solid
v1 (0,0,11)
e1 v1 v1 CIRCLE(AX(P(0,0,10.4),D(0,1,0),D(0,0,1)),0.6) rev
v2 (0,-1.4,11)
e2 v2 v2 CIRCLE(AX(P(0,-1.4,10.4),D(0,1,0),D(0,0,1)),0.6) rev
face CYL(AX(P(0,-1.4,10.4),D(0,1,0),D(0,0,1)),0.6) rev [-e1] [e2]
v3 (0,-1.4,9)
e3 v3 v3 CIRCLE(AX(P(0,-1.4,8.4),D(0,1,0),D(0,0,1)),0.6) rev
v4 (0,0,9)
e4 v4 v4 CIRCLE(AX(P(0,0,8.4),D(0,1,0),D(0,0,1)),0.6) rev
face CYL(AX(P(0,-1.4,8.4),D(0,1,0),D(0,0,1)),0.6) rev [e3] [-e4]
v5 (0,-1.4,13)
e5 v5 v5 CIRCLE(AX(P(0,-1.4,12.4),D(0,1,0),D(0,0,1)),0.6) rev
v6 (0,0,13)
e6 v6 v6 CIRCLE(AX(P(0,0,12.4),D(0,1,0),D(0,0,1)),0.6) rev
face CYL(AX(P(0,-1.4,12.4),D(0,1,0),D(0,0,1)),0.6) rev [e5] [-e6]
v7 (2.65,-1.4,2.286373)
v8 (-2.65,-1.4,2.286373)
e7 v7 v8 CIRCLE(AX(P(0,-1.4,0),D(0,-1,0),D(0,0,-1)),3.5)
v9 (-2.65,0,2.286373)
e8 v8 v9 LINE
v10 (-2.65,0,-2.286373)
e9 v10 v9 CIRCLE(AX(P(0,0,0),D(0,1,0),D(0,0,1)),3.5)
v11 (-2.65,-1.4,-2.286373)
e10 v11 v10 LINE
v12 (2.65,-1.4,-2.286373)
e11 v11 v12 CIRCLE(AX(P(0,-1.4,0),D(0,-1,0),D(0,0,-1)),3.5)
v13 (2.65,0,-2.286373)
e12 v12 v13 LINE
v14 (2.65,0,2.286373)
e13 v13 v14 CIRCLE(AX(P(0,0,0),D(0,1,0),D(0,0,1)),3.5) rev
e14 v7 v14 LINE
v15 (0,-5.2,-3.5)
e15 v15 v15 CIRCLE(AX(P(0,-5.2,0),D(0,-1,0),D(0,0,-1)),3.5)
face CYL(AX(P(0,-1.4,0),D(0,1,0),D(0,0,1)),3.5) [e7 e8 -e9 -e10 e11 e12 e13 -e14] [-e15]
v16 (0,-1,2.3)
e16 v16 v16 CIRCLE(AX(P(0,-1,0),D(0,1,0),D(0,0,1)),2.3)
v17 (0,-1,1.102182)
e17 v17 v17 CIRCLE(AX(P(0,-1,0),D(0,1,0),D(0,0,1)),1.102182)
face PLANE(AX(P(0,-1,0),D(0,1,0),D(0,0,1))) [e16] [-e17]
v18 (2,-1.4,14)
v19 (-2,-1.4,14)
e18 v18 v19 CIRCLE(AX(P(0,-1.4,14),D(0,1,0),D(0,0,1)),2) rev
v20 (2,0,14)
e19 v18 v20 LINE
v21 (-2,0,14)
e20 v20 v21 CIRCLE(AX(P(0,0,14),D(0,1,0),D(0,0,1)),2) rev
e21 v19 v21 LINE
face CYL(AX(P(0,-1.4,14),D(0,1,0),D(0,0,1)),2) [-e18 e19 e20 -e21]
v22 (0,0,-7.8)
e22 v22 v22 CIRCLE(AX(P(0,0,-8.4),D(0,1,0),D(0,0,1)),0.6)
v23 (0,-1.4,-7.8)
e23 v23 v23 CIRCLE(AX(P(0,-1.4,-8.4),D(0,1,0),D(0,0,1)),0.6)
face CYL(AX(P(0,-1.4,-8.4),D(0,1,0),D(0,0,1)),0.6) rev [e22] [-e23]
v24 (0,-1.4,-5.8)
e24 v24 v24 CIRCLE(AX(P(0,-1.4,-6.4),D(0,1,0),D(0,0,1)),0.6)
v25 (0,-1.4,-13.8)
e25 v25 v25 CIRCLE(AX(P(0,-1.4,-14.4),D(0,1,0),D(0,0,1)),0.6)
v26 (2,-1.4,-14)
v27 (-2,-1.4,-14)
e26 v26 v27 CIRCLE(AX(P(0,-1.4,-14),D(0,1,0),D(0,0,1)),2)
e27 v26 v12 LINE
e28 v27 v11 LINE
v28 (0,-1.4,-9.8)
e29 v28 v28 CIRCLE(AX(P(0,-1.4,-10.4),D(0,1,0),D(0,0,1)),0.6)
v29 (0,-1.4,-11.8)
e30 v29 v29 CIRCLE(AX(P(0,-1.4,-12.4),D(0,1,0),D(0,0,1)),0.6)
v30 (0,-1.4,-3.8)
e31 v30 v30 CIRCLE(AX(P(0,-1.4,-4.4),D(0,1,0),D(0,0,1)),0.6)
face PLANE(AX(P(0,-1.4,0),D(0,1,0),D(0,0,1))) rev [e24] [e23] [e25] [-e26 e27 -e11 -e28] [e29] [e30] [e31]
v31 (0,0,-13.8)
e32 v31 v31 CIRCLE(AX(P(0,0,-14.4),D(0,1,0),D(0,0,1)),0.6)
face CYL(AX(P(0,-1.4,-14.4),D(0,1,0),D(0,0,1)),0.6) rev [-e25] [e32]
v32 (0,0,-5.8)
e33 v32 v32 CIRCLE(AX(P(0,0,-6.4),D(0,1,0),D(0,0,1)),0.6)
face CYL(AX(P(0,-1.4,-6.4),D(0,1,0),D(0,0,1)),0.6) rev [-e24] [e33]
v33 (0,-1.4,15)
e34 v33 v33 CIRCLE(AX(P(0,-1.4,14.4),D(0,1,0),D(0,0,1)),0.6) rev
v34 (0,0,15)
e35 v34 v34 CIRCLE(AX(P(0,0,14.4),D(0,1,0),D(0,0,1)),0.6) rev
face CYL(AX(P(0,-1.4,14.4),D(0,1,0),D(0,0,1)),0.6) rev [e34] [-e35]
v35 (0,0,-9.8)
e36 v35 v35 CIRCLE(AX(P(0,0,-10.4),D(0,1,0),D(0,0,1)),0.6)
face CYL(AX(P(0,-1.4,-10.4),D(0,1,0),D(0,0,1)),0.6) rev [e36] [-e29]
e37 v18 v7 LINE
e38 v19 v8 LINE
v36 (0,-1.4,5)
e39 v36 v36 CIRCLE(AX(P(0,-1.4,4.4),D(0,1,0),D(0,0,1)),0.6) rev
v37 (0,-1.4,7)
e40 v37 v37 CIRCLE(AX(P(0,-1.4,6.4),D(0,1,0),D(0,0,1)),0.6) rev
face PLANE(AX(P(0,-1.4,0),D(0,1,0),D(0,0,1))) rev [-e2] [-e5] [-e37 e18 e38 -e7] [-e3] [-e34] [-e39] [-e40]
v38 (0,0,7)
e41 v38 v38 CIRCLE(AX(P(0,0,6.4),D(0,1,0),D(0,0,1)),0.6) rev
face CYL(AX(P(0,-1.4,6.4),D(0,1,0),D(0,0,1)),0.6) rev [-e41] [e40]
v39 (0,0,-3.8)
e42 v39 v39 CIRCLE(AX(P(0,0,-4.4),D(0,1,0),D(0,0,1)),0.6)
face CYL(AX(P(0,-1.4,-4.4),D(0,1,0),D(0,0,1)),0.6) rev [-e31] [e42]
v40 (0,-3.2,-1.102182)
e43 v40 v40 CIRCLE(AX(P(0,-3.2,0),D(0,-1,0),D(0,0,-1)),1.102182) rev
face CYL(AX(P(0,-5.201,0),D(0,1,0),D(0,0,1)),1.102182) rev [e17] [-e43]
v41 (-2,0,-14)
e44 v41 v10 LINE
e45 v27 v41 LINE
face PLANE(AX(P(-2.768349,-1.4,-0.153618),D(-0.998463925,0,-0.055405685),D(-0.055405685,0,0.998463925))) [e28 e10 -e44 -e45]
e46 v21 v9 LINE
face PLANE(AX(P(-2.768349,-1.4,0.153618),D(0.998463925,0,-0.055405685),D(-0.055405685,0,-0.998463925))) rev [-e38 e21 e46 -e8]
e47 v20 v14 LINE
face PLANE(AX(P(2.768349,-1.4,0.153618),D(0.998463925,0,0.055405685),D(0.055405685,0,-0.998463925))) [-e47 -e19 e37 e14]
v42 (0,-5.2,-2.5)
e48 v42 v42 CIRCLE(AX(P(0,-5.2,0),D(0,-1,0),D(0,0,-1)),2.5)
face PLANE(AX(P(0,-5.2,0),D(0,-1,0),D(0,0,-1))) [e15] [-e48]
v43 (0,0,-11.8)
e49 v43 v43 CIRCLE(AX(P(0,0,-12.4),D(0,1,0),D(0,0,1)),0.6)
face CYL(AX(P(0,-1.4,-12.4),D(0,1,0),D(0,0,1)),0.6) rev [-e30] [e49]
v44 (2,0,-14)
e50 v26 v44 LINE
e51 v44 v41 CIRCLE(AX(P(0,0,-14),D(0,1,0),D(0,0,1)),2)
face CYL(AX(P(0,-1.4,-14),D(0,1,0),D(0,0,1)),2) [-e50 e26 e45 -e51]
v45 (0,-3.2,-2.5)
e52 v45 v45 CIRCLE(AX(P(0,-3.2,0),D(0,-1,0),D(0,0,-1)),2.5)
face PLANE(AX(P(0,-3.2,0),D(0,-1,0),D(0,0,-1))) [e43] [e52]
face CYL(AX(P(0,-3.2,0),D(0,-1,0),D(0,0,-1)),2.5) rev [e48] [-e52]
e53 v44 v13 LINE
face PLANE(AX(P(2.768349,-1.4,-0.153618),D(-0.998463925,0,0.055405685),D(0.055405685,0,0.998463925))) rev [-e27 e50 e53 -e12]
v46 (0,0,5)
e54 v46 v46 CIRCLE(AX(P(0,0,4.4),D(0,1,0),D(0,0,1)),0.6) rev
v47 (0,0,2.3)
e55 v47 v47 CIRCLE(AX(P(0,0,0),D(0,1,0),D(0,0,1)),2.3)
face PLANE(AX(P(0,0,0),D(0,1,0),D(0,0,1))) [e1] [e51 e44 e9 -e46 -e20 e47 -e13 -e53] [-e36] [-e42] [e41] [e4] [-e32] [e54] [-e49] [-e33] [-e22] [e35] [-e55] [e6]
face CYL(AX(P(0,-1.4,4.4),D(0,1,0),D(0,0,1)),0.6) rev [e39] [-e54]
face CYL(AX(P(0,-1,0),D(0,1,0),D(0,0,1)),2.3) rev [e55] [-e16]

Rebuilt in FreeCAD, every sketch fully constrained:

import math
import FreeCAD as App
import Part
import Sketcher

doc = App.newDocument("Part")
body = doc.addObject("PartDesign::Body", "Body")

# Sketch on XZ plane
sketch1 = body.newObject("Sketcher::SketchObject", "Sketch")
sketch1.AttachmentSupport = (doc.getObject("XZ_Plane"), [""])
sketch1.MapMode = "FlatFace"
sketch1.addGeometry([
    Part.ArcOfCircle(Part.Circle(App.Vector(0, 0, 0), App.Vector(0, 0, 1), 3.5), math.radians(-41), math.radians(41)),  # 0
    Part.LineSegment(App.Vector(2.6, -2.3, 0), App.Vector(2, -14, 0)),  # 1
    Part.ArcOfCircle(Part.Circle(App.Vector(0, -14, 0), App.Vector(0, 0, 1), 2), math.radians(180), math.radians(360)),  # 2
    Part.LineSegment(App.Vector(-2, -14, 0), App.Vector(-2.6, -2.3, 0)),  # 3
    Part.ArcOfCircle(Part.Circle(App.Vector(0, 0, 0), App.Vector(0, 0, 1), 3.5), math.radians(139), math.radians(221)),  # 4
    Part.LineSegment(App.Vector(-2.6, 2.3, 0), App.Vector(-2, 14, 0)),  # 5
    Part.ArcOfCircle(Part.Circle(App.Vector(0, 14, 0), App.Vector(0, 0, 1), 2), math.radians(0), math.radians(180)),  # 6
    Part.LineSegment(App.Vector(2, 14, 0), App.Vector(2.6, 2.3, 0)),  # 7
    Part.Circle(App.Vector(0, 14.4, 0), App.Vector(0, 0, 1), 0.6),  # 8
    Part.Circle(App.Vector(0, 12.4, 0), App.Vector(0, 0, 1), 0.6),  # 9
    Part.Circle(App.Vector(0, 10.4, 0), App.Vector(0, 0, 1), 0.6),  # 10
    Part.Circle(App.Vector(0, 8.4, 0), App.Vector(0, 0, 1), 0.6),  # 11
    Part.Circle(App.Vector(0, 6.4, 0), App.Vector(0, 0, 1), 0.6),  # 12
    Part.Circle(App.Vector(0, 4.4, 0), App.Vector(0, 0, 1), 0.6),  # 13
    Part.Circle(App.Vector(0, -4.4, 0), App.Vector(0, 0, 1), 0.6),  # 14
    Part.Circle(App.Vector(0, -6.4, 0), App.Vector(0, 0, 1), 0.6),  # 15
    Part.Circle(App.Vector(0, -8.4, 0), App.Vector(0, 0, 1), 0.6),  # 16
    Part.Circle(App.Vector(0, -10.4, 0), App.Vector(0, 0, 1), 0.6),  # 17
    Part.Circle(App.Vector(0, -12.4, 0), App.Vector(0, 0, 1), 0.6),  # 18
    Part.Circle(App.Vector(0, -14.4, 0), App.Vector(0, 0, 1), 0.6),  # 19
], False)
sketch1.addConstraint([
    Sketcher.Constraint("Coincident", 0, 1, 1, 1),
    Sketcher.Constraint("Coincident", 1, 2, 2, 2),
    Sketcher.Constraint("Coincident", 2, 1, 3, 1),
    Sketcher.Constraint("Coincident", 3, 2, 4, 2),
    Sketcher.Constraint("Coincident", 4, 1, 5, 1),
    Sketcher.Constraint("Coincident", 5, 2, 6, 2),
    Sketcher.Constraint("Coincident", 6, 1, 7, 1),
    Sketcher.Constraint("Coincident", 7, 2, 0, 2),
    Sketcher.Constraint("Coincident", 0, 3, -1, 1),
    Sketcher.Constraint("Coincident", 4, 3, -1, 1),
    Sketcher.Constraint("Equal", 0, 4),
    Sketcher.Constraint("Equal", 2, 6),
    Sketcher.Constraint("Equal", 8, 9),
    Sketcher.Constraint("Equal", 9, 10),
    Sketcher.Constraint("Equal", 10, 11),
    Sketcher.Constraint("Equal", 11, 12),
    Sketcher.Constraint("Equal", 12, 13),
    Sketcher.Constraint("Equal", 13, 14),
    Sketcher.Constraint("Equal", 14, 15),
    Sketcher.Constraint("Equal", 15, 16),
    Sketcher.Constraint("Equal", 16, 17),
    Sketcher.Constraint("Equal", 17, 18),
    Sketcher.Constraint("Equal", 18, 19),
    Sketcher.Constraint("Symmetric", 2, 3, 6, 3, -1, 1),
    Sketcher.Constraint("Symmetric", 13, 3, 14, 3, -1, 1),
    Sketcher.Constraint("Symmetric", 12, 3, 15, 3, -1, 1),
    Sketcher.Constraint("Symmetric", 11, 3, 16, 3, -1, 1),
    Sketcher.Constraint("Symmetric", 10, 3, 17, 3, -1, 1),
    Sketcher.Constraint("Symmetric", 9, 3, 18, 3, -1, 1),
    Sketcher.Constraint("Symmetric", 8, 3, 19, 3, -1, 1),
    Sketcher.Constraint("Symmetric", 1, 2, 2, 1, -2),
    Sketcher.Constraint("PointOnObject", 8, 3, -2),
    Sketcher.Constraint("PointOnObject", 9, 3, -2),
    Sketcher.Constraint("PointOnObject", 10, 3, -2),
    Sketcher.Constraint("PointOnObject", 11, 3, -2),
    Sketcher.Constraint("PointOnObject", 12, 3, -2),
    Sketcher.Constraint("PointOnObject", 13, 3, -2),
    Sketcher.Constraint("Parallel", 1, 5),
    Sketcher.Constraint("Parallel", 3, 7),
    Sketcher.Constraint("Horizontal", 2, 3, 1, 2),
    Sketcher.Constraint("Horizontal", 0, 1, 3, 2),
    Sketcher.Constraint("Horizontal", 6, 3, 5, 2),
    Sketcher.Constraint("Horizontal", 5, 2, 6, 1),
    Sketcher.Constraint("Radius", 2, 2.0),
    Sketcher.Constraint("Diameter", 8, 1.2),
    Sketcher.Constraint("Radius", 0, 3.5),
    Sketcher.Constraint("DistanceY", 2, 3, -1, 1, 14.0),
    Sketcher.Constraint("DistanceY", 9, 3, 8, 3, 2.0),
    Sketcher.Constraint("DistanceY", 10, 3, 9, 3, 2.0),
    Sketcher.Constraint("DistanceY", 11, 3, 10, 3, 2.0),
    Sketcher.Constraint("DistanceY", 12, 3, 11, 3, 2.0),
    Sketcher.Constraint("DistanceY", 13, 3, 12, 3, 2.0),
    Sketcher.Constraint("DistanceY", -1, 1, 8, 3, 14.4),
    Sketcher.Constraint("DistanceX", 3, 2, 0, 1, 5.3),
])
pad1 = body.newObject("PartDesign::Pad", "Pad")
pad1.Profile = sketch1
pad1.Length = 1.4

# Sketch on XZ plane
sketch2 = body.newObject("Sketcher::SketchObject", "Sketch001")
sketch2.AttachmentSupport = (doc.getObject("XZ_Plane"), [""])
sketch2.MapMode = "FlatFace"
sketch2.AttachmentOffset = App.Placement(App.Vector(0, 0, 1.4), App.Rotation())
sketch2.addGeometry(Part.Circle(App.Vector(0, 0, 0), App.Vector(0, 0, 1), 3.5), False)
sketch2.addConstraint([
    Sketcher.Constraint("Coincident", 0, 3, -1, 1),
    Sketcher.Constraint("Diameter", 0, 7.0),
])
pad2 = body.newObject("PartDesign::Pad", "Pad001")
pad2.Profile = sketch2
pad2.Length = 3.8

# Sketch on XZ plane
sketch3 = body.newObject("Sketcher::SketchObject", "Sketch002")
sketch3.AttachmentSupport = (doc.getObject("XZ_Plane"), [""])
sketch3.MapMode = "FlatFace"
sketch3.addGeometry(Part.Circle(App.Vector(0, 0, 0), App.Vector(0, 0, 1), 2.3), False)
sketch3.addConstraint([
    Sketcher.Constraint("Coincident", 0, 3, -1, 1),
    Sketcher.Constraint("Diameter", 0, 4.6),
])
pocket1 = body.newObject("PartDesign::Pocket", "Pocket")
pocket1.Profile = sketch3
pocket1.Length = 1
pocket1.Reversed = True

# Sketch on XZ plane
sketch4 = body.newObject("Sketcher::SketchObject", "Sketch003")
sketch4.AttachmentSupport = (doc.getObject("XZ_Plane"), [""])
sketch4.MapMode = "FlatFace"
sketch4.AttachmentOffset = App.Placement(App.Vector(0, 0, 5.2), App.Rotation())
sketch4.addGeometry(Part.Circle(App.Vector(0, 0, 0), App.Vector(0, 0, 1), 2.5), False)
sketch4.addConstraint([
    Sketcher.Constraint("Coincident", 0, 3, -1, 1),
    Sketcher.Constraint("Diameter", 0, 5.0),
])
pocket2 = body.newObject("PartDesign::Pocket", "Pocket001")
pocket2.Profile = sketch4
pocket2.Length = 2

# Sketch on XZ plane
sketch5 = body.newObject("Sketcher::SketchObject", "Sketch004")
sketch5.AttachmentSupport = (doc.getObject("XZ_Plane"), [""])
sketch5.MapMode = "FlatFace"
sketch5.AttachmentOffset = App.Placement(App.Vector(0, 0, 1), App.Rotation())
sketch5.addGeometry(Part.Circle(App.Vector(0, 0, 0), App.Vector(0, 0, 1), 1.1), False)
sketch5.addConstraint([
    Sketcher.Constraint("Coincident", 0, 3, -1, 1),
    Sketcher.Constraint("Diameter", 0, 2.204364),
])
pocket3 = body.newObject("PartDesign::Pocket", "Pocket002")
pocket3.Profile = sketch5
pocket3.Type = "UpToFirst"
pocket3.Reversed = True

doc.recompute()
